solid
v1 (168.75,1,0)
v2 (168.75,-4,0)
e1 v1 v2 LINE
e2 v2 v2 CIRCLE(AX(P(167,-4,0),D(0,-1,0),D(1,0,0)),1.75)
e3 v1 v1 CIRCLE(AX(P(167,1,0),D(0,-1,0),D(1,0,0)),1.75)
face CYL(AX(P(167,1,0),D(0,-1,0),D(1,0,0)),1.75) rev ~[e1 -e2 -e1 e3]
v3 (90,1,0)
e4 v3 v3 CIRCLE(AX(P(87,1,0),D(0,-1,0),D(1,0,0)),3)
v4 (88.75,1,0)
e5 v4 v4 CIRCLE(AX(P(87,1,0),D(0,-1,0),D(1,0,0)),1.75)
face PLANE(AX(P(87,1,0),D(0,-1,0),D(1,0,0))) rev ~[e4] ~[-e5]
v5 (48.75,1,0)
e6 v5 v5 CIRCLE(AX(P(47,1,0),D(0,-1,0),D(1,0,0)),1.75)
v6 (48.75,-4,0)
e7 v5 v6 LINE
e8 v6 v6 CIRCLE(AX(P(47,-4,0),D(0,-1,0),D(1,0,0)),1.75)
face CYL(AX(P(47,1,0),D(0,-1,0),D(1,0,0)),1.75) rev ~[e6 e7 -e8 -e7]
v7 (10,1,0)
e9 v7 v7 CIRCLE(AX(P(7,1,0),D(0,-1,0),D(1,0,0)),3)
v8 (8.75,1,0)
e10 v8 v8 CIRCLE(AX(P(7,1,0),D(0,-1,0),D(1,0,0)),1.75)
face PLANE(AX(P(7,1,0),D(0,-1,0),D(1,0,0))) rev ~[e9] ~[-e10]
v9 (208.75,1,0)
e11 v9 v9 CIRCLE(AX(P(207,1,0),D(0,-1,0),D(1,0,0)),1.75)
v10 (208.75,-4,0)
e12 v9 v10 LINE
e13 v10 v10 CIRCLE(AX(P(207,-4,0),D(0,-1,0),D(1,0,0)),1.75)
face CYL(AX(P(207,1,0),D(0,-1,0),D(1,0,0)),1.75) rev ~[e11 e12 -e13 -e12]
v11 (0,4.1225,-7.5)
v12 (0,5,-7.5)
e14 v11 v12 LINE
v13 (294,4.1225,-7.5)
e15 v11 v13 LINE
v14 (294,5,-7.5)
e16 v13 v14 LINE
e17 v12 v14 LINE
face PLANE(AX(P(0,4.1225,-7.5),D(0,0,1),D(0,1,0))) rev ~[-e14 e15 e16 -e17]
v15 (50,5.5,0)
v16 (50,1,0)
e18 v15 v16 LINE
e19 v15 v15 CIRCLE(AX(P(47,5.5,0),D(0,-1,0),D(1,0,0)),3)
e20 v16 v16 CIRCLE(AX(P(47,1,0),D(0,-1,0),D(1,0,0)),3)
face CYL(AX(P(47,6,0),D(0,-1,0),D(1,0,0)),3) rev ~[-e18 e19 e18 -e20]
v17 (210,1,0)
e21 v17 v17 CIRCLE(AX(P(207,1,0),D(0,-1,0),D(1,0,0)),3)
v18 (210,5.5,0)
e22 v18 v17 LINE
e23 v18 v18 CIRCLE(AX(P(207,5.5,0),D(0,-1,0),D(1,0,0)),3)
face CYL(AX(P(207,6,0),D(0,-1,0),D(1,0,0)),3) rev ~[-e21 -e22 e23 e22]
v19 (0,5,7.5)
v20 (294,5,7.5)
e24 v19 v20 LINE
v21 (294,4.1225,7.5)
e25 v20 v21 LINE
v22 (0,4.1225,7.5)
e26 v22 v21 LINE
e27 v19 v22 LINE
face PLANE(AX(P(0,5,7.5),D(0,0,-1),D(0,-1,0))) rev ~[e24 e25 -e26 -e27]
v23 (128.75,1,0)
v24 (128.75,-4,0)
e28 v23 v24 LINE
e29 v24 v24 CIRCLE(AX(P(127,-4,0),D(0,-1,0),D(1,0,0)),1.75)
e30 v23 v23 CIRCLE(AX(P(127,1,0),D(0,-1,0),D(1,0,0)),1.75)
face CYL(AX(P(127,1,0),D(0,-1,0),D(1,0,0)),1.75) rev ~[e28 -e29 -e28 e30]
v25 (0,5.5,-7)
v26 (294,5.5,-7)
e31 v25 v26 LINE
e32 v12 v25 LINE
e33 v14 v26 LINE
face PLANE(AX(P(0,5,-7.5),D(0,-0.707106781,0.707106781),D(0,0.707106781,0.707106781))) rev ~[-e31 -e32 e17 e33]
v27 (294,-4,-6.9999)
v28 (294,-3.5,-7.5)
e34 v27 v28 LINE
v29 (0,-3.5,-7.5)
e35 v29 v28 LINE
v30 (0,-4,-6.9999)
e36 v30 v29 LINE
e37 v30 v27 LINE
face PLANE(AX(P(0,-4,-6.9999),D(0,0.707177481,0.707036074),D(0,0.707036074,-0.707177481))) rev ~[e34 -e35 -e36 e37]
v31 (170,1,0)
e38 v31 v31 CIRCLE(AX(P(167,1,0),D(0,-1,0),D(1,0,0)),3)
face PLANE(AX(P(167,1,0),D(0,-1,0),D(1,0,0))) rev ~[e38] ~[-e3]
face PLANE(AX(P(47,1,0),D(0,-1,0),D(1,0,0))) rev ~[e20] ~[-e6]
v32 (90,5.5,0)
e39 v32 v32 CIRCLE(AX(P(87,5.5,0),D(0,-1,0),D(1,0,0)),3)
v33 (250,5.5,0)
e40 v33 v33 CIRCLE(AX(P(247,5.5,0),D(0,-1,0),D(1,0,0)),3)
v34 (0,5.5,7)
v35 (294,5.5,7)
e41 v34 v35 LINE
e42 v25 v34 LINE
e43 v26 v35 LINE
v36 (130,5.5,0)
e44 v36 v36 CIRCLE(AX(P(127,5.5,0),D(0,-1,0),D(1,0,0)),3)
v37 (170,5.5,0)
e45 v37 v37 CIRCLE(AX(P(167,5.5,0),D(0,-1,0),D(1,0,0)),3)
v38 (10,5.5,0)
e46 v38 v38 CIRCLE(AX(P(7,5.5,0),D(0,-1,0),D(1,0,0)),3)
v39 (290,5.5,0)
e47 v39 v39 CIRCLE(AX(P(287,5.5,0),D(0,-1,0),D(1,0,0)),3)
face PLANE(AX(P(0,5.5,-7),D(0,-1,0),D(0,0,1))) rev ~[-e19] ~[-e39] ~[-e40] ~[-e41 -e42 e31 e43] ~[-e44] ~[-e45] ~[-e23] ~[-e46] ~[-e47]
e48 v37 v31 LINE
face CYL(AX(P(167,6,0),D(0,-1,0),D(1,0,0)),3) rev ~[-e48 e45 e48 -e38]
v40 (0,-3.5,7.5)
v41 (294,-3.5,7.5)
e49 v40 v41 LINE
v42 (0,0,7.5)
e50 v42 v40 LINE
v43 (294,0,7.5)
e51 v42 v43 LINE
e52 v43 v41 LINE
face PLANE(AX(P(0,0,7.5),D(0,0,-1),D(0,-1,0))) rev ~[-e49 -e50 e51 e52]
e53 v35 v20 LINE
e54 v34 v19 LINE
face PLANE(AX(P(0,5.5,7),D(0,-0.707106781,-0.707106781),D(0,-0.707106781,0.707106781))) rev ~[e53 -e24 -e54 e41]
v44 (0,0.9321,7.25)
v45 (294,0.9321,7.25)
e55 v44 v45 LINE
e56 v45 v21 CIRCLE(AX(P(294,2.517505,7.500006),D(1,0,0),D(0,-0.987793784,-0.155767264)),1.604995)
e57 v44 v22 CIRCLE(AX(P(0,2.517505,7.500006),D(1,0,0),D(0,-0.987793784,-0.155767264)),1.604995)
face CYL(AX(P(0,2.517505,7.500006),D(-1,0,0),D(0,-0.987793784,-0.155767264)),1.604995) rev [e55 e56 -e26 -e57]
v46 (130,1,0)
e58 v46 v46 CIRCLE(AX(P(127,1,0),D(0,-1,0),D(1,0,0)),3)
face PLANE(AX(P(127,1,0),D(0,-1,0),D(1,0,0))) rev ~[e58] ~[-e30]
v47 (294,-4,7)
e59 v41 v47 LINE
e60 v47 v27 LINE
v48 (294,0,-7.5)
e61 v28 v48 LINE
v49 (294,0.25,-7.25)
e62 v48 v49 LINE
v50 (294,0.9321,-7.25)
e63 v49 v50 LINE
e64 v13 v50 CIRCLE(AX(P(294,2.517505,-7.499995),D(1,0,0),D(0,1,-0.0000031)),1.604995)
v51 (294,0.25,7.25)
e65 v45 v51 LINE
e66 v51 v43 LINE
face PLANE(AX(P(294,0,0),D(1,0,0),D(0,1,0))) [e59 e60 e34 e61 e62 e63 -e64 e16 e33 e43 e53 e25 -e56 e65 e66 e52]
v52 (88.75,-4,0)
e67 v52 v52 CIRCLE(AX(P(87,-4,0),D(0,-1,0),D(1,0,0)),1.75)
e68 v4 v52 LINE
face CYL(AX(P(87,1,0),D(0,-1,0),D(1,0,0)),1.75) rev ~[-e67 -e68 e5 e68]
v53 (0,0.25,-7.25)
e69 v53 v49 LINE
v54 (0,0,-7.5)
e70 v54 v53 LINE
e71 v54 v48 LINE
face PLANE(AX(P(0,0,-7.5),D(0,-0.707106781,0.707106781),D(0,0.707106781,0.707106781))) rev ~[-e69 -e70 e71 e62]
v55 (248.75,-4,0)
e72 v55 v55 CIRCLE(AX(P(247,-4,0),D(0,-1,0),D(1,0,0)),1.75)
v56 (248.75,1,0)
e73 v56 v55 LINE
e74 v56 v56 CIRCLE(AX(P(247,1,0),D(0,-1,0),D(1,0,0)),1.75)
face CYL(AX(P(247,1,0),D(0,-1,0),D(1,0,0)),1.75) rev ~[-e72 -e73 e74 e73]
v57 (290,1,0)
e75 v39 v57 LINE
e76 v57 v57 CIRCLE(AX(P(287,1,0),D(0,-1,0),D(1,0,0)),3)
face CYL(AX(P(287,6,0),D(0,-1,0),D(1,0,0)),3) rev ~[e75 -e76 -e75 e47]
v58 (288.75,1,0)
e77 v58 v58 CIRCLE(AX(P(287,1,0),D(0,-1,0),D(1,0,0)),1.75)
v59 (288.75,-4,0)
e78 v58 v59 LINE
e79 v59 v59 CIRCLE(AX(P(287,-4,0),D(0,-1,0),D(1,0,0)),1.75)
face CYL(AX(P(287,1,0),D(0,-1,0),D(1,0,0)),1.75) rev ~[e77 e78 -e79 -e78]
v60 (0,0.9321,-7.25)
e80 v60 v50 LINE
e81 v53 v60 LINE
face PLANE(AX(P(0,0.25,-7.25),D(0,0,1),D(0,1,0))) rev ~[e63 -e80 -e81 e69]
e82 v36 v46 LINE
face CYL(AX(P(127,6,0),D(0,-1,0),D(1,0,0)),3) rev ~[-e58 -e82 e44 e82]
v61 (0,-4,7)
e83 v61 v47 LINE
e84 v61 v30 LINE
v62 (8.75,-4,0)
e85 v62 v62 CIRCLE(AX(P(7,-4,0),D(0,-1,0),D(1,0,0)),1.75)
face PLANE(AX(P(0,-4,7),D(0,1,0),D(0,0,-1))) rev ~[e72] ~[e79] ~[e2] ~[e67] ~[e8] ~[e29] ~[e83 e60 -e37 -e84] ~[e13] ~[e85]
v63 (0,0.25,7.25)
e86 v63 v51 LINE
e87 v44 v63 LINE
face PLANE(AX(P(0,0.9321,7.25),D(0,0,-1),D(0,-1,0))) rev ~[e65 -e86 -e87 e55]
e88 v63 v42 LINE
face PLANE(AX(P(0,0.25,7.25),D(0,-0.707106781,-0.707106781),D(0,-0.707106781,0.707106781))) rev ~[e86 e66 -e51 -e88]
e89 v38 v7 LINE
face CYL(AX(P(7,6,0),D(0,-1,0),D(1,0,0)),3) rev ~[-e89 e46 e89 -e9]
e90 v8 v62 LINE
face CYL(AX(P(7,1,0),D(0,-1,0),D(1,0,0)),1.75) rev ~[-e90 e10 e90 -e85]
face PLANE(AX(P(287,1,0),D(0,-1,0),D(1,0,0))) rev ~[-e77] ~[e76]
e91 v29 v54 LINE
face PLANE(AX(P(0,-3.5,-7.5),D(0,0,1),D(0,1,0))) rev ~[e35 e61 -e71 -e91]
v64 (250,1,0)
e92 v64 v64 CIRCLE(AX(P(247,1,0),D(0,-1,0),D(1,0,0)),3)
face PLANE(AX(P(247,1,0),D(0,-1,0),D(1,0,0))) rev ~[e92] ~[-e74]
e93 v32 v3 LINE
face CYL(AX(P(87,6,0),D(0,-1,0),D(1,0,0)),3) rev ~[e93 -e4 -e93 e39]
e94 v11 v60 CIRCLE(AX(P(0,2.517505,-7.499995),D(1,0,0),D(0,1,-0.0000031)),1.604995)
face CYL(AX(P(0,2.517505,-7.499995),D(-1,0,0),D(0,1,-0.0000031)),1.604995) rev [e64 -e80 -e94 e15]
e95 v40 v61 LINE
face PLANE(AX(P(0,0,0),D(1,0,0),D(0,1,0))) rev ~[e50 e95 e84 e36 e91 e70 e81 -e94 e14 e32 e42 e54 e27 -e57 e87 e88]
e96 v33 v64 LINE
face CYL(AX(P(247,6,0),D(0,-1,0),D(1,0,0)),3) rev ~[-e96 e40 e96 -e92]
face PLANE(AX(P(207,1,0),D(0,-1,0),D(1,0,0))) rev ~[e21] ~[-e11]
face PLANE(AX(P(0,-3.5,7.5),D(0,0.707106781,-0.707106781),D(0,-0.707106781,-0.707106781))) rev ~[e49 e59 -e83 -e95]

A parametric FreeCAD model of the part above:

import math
import FreeCAD as App
import Part
import Sketcher
Q = App.Units.Quantity


def add_polygon(sketch, points):
    """Adds a closed chain of lines whose ends are joined by coincident constraints."""
    first, n = sketch.GeometryCount, len(points)
    for a, b in zip(points, points[1:] + points[:1]):
        sketch.addGeometry(Part.LineSegment(App.Vector(*a, 0), App.Vector(*b, 0)), False)
    for i in range(n):
        sketch.addConstraint(Sketcher.Constraint("Coincident", first + i, 2, first + (i + 1) % n, 1))

doc = App.newDocument("Part")
body = doc.addObject("PartDesign::Body", "Body")

sketch1 = body.newObject("Sketcher::SketchObject", "Sketch")
sketch1.AttachmentSupport = (doc.getObject("YZ_Plane"), [""])
sketch1.MapMode = "FlatFace"
sketch1.addGeometry(Part.LineSegment(App.Vector(5.5, 7, 0), App.Vector(5, 7.5, 0)), False)
sketch1.addGeometry(Part.LineSegment(App.Vector(5, 7.5, 0), App.Vector(4.1225, 7.5, 0)), False)
sketch1.addGeometry(Part.ArcOfCircle(Part.Circle(App.Vector(2.5175, 7.5, 0), App.Vector(0, 0, 1), 1.60499), math.radians(-171.03888), math.radians(0)), False)
sketch1.addGeometry(Part.LineSegment(App.Vector(0.9321, 7.25, 0), App.Vector(0.25, 7.25, 0)), False)
sketch1.addGeometry(Part.LineSegment(App.Vector(0.25, 7.25, 0), App.Vector(0, 7.5, 0)), False)
sketch1.addGeometry(Part.LineSegment(App.Vector(0, 7.5, 0), App.Vector(-3.5, 7.5, 0)), False)
sketch1.addGeometry(Part.LineSegment(App.Vector(-3.5, 7.5, 0), App.Vector(-4, 7, 0)), False)
sketch1.addGeometry(Part.LineSegment(App.Vector(-4, 7, 0), App.Vector(-4, -6.9999, 0)), False)
sketch1.addGeometry(Part.LineSegment(App.Vector(-4, -6.9999, 0), App.Vector(-3.5, -7.5, 0)), False)
sketch1.addGeometry(Part.LineSegment(App.Vector(-3.5, -7.5, 0), App.Vector(0, -7.5, 0)), False)
sketch1.addGeometry(Part.LineSegment(App.Vector(0, -7.5, 0), App.Vector(0.25, -7.25, 0)), False)
sketch1.addGeometry(Part.LineSegment(App.Vector(0.25, -7.25, 0), App.Vector(0.9321, -7.25, 0)), False)
sketch1.addGeometry(Part.ArcOfCircle(Part.Circle(App.Vector(2.5175, -7.5, 0), App.Vector(0, 0, 1), 1.605), math.radians(0), math.radians(171.03888)), False)
sketch1.addGeometry(Part.LineSegment(App.Vector(4.1225, -7.5, 0), App.Vector(5, -7.5, 0)), False)
sketch1.addGeometry(Part.LineSegment(App.Vector(5, -7.5, 0), App.Vector(5.5, -7, 0)), False)
sketch1.addGeometry(Part.LineSegment(App.Vector(5.5, -7, 0), App.Vector(5.5, 7, 0)), False)
sketch1.addConstraint(Sketcher.Constraint("Coincident", 0, 2, 1, 1))
sketch1.addConstraint(Sketcher.Constraint("Coincident", 1, 2, 2, 2))
sketch1.addConstraint(Sketcher.Constraint("Coincident", 2, 1, 3, 1))
sketch1.addConstraint(Sketcher.Constraint("Coincident", 3, 2, 4, 1))
sketch1.addConstraint(Sketcher.Constraint("Coincident", 4, 2, 5, 1))
sketch1.addConstraint(Sketcher.Constraint("Coincident", 5, 2, 6, 1))
sketch1.addConstraint(Sketcher.Constraint("Coincident", 6, 2, 7, 1))
sketch1.addConstraint(Sketcher.Constraint("Coincident", 7, 2, 8, 1))
sketch1.addConstraint(Sketcher.Constraint("Coincident", 8, 2, 9, 1))
sketch1.addConstraint(Sketcher.Constraint("Coincident", 9, 2, 10, 1))
sketch1.addConstraint(Sketcher.Constraint("Coincident", 10, 2, 11, 1))
sketch1.addConstraint(Sketcher.Constraint("Coincident", 11, 2, 12, 2))
sketch1.addConstraint(Sketcher.Constraint("Coincident", 12, 1, 13, 1))
sketch1.addConstraint(Sketcher.Constraint("Coincident", 13, 2, 14, 1))
sketch1.addConstraint(Sketcher.Constraint("Coincident", 14, 2, 15, 1))
sketch1.addConstraint(Sketcher.Constraint("Coincident", 15, 2, 0, 1))
sketch1.addConstraint(Sketcher.Constraint("Horizontal", 1))
sketch1.addConstraint(Sketcher.Constraint("Horizontal", 3))
sketch1.addConstraint(Sketcher.Constraint("Horizontal", 5))
sketch1.addConstraint(Sketcher.Constraint("Vertical", 7))
sketch1.addConstraint(Sketcher.Constraint("Horizontal", 9))
sketch1.addConstraint(Sketcher.Constraint("Horizontal", 11))
sketch1.addConstraint(Sketcher.Constraint("Horizontal", 13))
sketch1.addConstraint(Sketcher.Constraint("Vertical", 15))
sketch1.addConstraint(Sketcher.Constraint("Equal", 2, 12))
sketch1.addConstraint(Sketcher.Constraint("Symmetric", 4, 2, 9, 2, -1, 1))
sketch1.addConstraint(Sketcher.Constraint("Symmetric", 2, 3, 12, 3, -1))
sketch1.addConstraint(Sketcher.Constraint("Symmetric", 3, 2, 10, 2, -1))
sketch1.addConstraint(Sketcher.Constraint("Symmetric", 0, 2, 13, 2, -1))
sketch1.addConstraint(Sketcher.Constraint("PointOnObject", 4, 2, -2))
sketch1.addConstraint(Sketcher.Constraint("Parallel", 0, 4))
sketch1.addConstraint(Sketcher.Constraint("Perpendicular", 4, 6))
sketch1.addConstraint(Sketcher.Constraint("Perpendicular", 6, 8))
sketch1.addConstraint(Sketcher.Constraint("Perpendicular", 8, 10))
sketch1.addConstraint(Sketcher.Constraint("Parallel", 10, 14))
sketch1.addConstraint(Sketcher.Constraint("Horizontal", 2, 3, 0, 2))
sketch1.addConstraint(Sketcher.Constraint("Horizontal", 1, 2, 4, 2))
sketch1.addConstraint(Sketcher.Constraint("Horizontal", 7, 2, 14, 2))
sketch1.addConstraint(Sketcher.Constraint("Horizontal", 6, 2, 15, 2))
sketch1.addConstraint(Sketcher.Constraint("DistanceY", 7, 2, 7, 1, Q("14 mm")))
sketch1.addConstraint(Sketcher.Constraint("DistanceX", 5, 2, 5, 1, Q("3.5 mm")))
sketch1.addConstraint(Sketcher.Constraint("DistanceX", -1, 1, 0, 2, Q("5 mm")))
sketch1.addConstraint(Sketcher.Constraint("DistanceX", 6, 2, -1, 1, Q("4 mm")))
sketch1.addConstraint(Sketcher.Constraint("Radius", 2, Q("1.605 mm")))
sketch1.addConstraint(Sketcher.Constraint("DistanceY", 10, 2, 3, 2, Q("14.5 mm")))
sketch1.addConstraint(Sketcher.Constraint("DistanceX", 3, 2, 3, 1, Q("0.682 mm")))
pad1 = body.newObject("PartDesign::Pad", "Pad")
pad1.Profile = sketch1
pad1.Length = 294

sketch2 = body.newObject("Sketcher::SketchObject", "Sketch001")
sketch2.AttachmentSupport = (doc.getObject("XY_Plane"), [""])
sketch2.MapMode = "FlatFace"
add_polygon(sketch2, [(7, 6), (7, -4.5), (8.75, -4.5), (8.75, 1), (10, 1), (10, 6)])
sketch2.addGeometry(Part.LineSegment(App.Vector(7, 6, 0), App.Vector(7, -4.5, 0)), True)
sketch2.addConstraint(Sketcher.Constraint("Vertical", 0))
sketch2.addConstraint(Sketcher.Constraint("Horizontal", 1))
sketch2.addConstraint(Sketcher.Constraint("Vertical", 2))
sketch2.addConstraint(Sketcher.Constraint("Horizontal", 3))
sketch2.addConstraint(Sketcher.Constraint("Vertical", 4))
sketch2.addConstraint(Sketcher.Constraint("Horizontal", 5))
sketch2.addConstraint(Sketcher.Constraint("Vertical", 6))
sketch2.addConstraint(Sketcher.Constraint("Coincident", 6, 1, 5, 2))
sketch2.addConstraint(Sketcher.Constraint("Horizontal", 1, 2, 6, 2))
sketch2.addConstraint(Sketcher.Constraint("DistanceX", 5, 2, 5, 1, Q("3 mm")))
sketch2.addConstraint(Sketcher.Constraint("DistanceY", 4, 1, 4, 2, Q("5 mm")))
sketch2.addConstraint(Sketcher.Constraint("DistanceY", 0, 2, 0, 1, Q("10.5 mm")))
sketch2.addConstraint(Sketcher.Constraint("DistanceX", -1, 1, 0, 2, Q("7 mm")))
sketch2.addConstraint(Sketcher.Constraint("DistanceY", -1, 1, 2, 2, Q("1 mm")))
sketch2.addConstraint(Sketcher.Constraint("DistanceX", 1, 1, 1, 2, Q("1.75 mm")))
groove = body.newObject("PartDesign::Groove", "Groove")
groove.Profile = sketch2
groove.ReferenceAxis = (sketch2, ["Axis0"])
groove.Angle = 360
doc.recompute()

linearpattern = body.newObject("PartDesign::LinearPattern", "LinearPattern")
linearpattern.Originals = [groove]
linearpattern.Direction = (doc.getObject("X_Axis"), [""])
linearpattern.Mode = "offset"
linearpattern.Offset = 40
linearpattern.Occurrences = 8
body.Tip = linearpattern

doc.recompute()
